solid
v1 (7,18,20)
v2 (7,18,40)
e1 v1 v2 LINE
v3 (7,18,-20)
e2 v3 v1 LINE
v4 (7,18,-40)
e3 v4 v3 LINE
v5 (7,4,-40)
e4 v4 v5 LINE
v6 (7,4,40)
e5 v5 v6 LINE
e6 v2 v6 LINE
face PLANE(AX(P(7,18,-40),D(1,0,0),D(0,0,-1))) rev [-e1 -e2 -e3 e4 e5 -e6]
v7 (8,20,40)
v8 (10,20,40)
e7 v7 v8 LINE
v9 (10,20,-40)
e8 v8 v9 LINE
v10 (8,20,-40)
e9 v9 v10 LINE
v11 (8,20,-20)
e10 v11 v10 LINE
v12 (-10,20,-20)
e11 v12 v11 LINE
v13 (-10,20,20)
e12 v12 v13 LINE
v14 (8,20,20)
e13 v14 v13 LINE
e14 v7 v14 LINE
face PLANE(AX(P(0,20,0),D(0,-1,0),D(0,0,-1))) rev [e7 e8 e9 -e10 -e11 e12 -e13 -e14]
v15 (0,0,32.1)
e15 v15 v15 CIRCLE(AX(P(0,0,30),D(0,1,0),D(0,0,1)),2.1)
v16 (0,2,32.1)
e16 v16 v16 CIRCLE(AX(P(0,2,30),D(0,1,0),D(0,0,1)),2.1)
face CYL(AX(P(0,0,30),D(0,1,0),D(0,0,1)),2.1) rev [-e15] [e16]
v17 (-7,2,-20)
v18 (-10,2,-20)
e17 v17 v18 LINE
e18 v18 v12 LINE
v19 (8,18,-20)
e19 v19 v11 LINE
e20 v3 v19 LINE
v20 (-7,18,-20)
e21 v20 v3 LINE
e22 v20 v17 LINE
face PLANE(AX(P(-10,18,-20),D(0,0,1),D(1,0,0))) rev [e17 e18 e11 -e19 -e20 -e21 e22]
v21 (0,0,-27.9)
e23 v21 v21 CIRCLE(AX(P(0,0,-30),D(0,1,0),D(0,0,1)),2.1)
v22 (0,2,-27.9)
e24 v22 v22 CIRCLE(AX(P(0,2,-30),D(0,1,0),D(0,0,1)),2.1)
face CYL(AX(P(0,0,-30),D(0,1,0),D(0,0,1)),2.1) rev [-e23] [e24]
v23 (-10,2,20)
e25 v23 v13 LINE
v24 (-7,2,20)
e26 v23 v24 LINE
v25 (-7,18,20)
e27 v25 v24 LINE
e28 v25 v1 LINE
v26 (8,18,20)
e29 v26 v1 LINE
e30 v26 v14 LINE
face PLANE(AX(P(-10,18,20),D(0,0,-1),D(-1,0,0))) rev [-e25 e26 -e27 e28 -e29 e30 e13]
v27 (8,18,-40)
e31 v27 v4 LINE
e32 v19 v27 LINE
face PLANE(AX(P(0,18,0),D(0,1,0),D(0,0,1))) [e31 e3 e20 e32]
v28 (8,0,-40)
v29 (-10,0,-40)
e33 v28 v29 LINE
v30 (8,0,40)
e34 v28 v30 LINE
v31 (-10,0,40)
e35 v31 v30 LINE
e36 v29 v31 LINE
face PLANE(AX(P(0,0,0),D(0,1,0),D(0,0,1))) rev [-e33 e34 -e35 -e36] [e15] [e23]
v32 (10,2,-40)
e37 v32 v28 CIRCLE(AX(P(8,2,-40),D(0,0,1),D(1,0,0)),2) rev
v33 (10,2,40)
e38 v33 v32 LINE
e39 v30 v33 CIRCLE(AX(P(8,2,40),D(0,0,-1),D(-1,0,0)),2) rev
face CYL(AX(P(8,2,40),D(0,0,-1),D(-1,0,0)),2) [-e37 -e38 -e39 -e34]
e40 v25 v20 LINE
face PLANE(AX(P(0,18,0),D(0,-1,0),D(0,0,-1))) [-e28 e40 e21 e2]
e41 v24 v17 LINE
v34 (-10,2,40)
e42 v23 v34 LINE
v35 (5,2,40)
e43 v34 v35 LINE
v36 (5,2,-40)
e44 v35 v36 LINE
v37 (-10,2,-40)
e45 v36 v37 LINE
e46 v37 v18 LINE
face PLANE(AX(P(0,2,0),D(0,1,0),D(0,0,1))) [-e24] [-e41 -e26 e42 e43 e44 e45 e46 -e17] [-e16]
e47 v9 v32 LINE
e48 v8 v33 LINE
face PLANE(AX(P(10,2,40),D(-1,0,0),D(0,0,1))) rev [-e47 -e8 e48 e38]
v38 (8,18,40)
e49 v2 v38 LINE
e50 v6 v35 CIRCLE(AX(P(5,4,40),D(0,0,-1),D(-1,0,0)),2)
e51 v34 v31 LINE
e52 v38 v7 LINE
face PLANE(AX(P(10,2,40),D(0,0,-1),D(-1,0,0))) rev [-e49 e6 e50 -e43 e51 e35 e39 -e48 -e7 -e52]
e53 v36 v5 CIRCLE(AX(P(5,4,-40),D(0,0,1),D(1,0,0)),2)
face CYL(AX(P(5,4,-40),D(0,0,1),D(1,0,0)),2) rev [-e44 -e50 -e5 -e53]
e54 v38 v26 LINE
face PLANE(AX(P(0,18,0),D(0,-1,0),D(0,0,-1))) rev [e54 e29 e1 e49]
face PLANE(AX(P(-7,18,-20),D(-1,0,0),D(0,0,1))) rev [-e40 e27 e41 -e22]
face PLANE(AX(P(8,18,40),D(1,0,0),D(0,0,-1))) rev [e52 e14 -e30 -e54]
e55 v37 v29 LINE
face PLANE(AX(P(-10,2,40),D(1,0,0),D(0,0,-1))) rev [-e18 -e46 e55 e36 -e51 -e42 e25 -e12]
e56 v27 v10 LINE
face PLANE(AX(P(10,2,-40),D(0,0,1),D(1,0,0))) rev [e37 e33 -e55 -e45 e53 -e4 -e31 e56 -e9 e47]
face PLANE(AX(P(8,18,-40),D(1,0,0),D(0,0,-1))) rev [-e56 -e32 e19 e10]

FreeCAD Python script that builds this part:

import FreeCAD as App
import Part
import Sketcher
Q = App.Units.Quantity


def edges_at(feature, points):
    """Names of the edges that pass closest to the given points."""
    edges = feature.Shape.Edges
    near = lambda p: min(range(len(edges)), key=lambda i: edges[i].distToShape(Part.Vertex(*p))[0])
    return sorted({f"Edge{near(p) + 1}" for p in points})

doc = App.newDocument("Part")
body = doc.addObject("PartDesign::Body", "Body")

# Sketch on XZ plane
sketch1 = body.newObject("Sketcher::SketchObject", "Sketch")
sketch1.AttachmentSupport = (doc.getObject("XZ_Plane"), [""])
sketch1.MapMode = "FlatFace"
sketch1.addGeometry(Part.LineSegment(App.Vector(-10, -40, 0), App.Vector(-10, 40, 0)), False)
sketch1.addGeometry(Part.LineSegment(App.Vector(-10, 40, 0), App.Vector(10, 40, 0)), False)
sketch1.addGeometry(Part.LineSegment(App.Vector(10, 40, 0), App.Vector(10, -40, 0)), False)
sketch1.addGeometry(Part.LineSegment(App.Vector(10, -40, 0), App.Vector(-10, -40, 0)), False)
sketch1.addConstraint(Sketcher.Constraint("Coincident", 0, 2, 1, 1))
sketch1.addConstraint(Sketcher.Constraint("Coincident", 1, 2, 2, 1))
sketch1.addConstraint(Sketcher.Constraint("Coincident", 2, 2, 3, 1))
sketch1.addConstraint(Sketcher.Constraint("Coincident", 3, 2, 0, 1))
sketch1.addConstraint(Sketcher.Constraint("Vertical", 0))
sketch1.addConstraint(Sketcher.Constraint("Horizontal", 1))
sketch1.addConstraint(Sketcher.Constraint("Vertical", 2))
sketch1.addConstraint(Sketcher.Constraint("Horizontal", 3))
sketch1.addConstraint(Sketcher.Constraint("Symmetric", 0, 2, 2, 2, -1, 1))
sketch1.addConstraint(Sketcher.Constraint("DistanceX", 1, 1, 1, 2, Q("20 mm")))
sketch1.addConstraint(Sketcher.Constraint("DistanceY", 0, 1, 0, 2, Q("80 mm")))
pad1 = body.newObject("PartDesign::Pad", "Pad")
pad1.Profile = sketch1
pad1.Length = 2
pad1.Reversed = True

# Sketch on XZ plane
sketch2 = body.newObject("Sketcher::SketchObject", "Sketch001")
sketch2.AttachmentSupport = (doc.getObject("XZ_Plane"), [""])
sketch2.MapMode = "FlatFace"
sketch2.AttachmentOffset = App.Placement(App.Vector(0, 0, -2), App.Rotation())
sketch2.addGeometry(Part.LineSegment(App.Vector(7, -40, 0), App.Vector(7, 40, 0)), False)
sketch2.addGeometry(Part.LineSegment(App.Vector(7, 40, 0), App.Vector(10, 40, 0)), False)
sketch2.addGeometry(Part.LineSegment(App.Vector(10, 40, 0), App.Vector(10, -40, 0)), False)
sketch2.addGeometry(Part.LineSegment(App.Vector(10, -40, 0), App.Vector(7, -40, 0)), False)
sketch2.addConstraint(Sketcher.Constraint("Coincident", 0, 2, 1, 1))
sketch2.addConstraint(Sketcher.Constraint("Coincident", 1, 2, 2, 1))
sketch2.addConstraint(Sketcher.Constraint("Coincident", 2, 2, 3, 1))
sketch2.addConstraint(Sketcher.Constraint("Coincident", 3, 2, 0, 1))
sketch2.addConstraint(Sketcher.Constraint("Vertical", 0))
sketch2.addConstraint(Sketcher.Constraint("Horizontal", 1))
sketch2.addConstraint(Sketcher.Constraint("Vertical", 2))
sketch2.addConstraint(Sketcher.Constraint("Horizontal", 3))
sketch2.addConstraint(Sketcher.Constraint("DistanceX", 1, 1, 1, 2, Q("3 mm")))
sketch2.addConstraint(Sketcher.Constraint("DistanceY", 0, 1, 0, 2, Q("80 mm")))
sketch2.addConstraint(Sketcher.Constraint("DistanceX", -1, 1, 0, 2, Q("7 mm")))
sketch2.addConstraint(Sketcher.Constraint("DistanceY", -1, 1, 0, 2, Q("40 mm")))
pad2 = body.newObject("PartDesign::Pad", "Pad001")
pad2.Profile = sketch2
pad2.Length = 16
pad2.Reversed = True
doc.recompute()

fillet = body.newObject("PartDesign::Fillet", "Fillet")
fillet.Base = (pad2, edges_at(pad2, [(10, 0, 0)]))
fillet.Radius = 2
doc.recompute()

fillet2 = body.newObject("PartDesign::Fillet", "Fillet001")
fillet2.Base = (fillet, edges_at(fillet, [(7, 2, 0)]))
fillet2.Radius = 2

# Sketch on XZ plane
sketch3 = body.newObject("Sketcher::SketchObject", "Sketch002")
sketch3.AttachmentSupport = (doc.getObject("XZ_Plane"), [""])
sketch3.MapMode = "FlatFace"
sketch3.AttachmentOffset = App.Placement(App.Vector(0, 0, -18), App.Rotation())
sketch3.addGeometry(Part.LineSegment(App.Vector(-10, -40, 0), App.Vector(-10, 40, 0)), False)
sketch3.addGeometry(Part.LineSegment(App.Vector(-10, 40, 0), App.Vector(10, 40, 0)), False)
sketch3.addGeometry(Part.LineSegment(App.Vector(10, 40, 0), App.Vector(10, -40, 0)), False)
sketch3.addGeometry(Part.LineSegment(App.Vector(10, -40, 0), App.Vector(-10, -40, 0)), False)
sketch3.addConstraint(Sketcher.Constraint("Coincident", 0, 2, 1, 1))
sketch3.addConstraint(Sketcher.Constraint("Coincident", 1, 2, 2, 1))
sketch3.addConstraint(Sketcher.Constraint("Coincident", 2, 2, 3, 1))
sketch3.addConstraint(Sketcher.Constraint("Coincident", 3, 2, 0, 1))
sketch3.addConstraint(Sketcher.Constraint("Vertical", 0))
sketch3.addConstraint(Sketcher.Constraint("Horizontal", 1))
sketch3.addConstraint(Sketcher.Constraint("Vertical", 2))
sketch3.addConstraint(Sketcher.Constraint("Horizontal", 3))
sketch3.addConstraint(Sketcher.Constraint("Symmetric", 0, 2, 2, 2, -1, 1))
sketch3.addConstraint(Sketcher.Constraint("DistanceX", 1, 1, 1, 2, Q("20 mm")))
sketch3.addConstraint(Sketcher.Constraint("DistanceY", 0, 1, 0, 2, Q("80 mm")))
pad3 = body.newObject("PartDesign::Pad", "Pad002")
pad3.Profile = sketch3
pad3.Length = 2
pad3.Reversed = True

# Sketch on XZ plane
sketch4 = body.newObject("Sketcher::SketchObject", "Sketch003")
sketch4.AttachmentSupport = (doc.getObject("XZ_Plane"), [""])
sketch4.MapMode = "FlatFace"
sketch4.AttachmentOffset = App.Placement(App.Vector(0, 0, -2), App.Rotation())
sketch4.addGeometry(Part.Circle(App.Vector(0, -30, 0), App.Vector(0, 0, 1), 2.1), False)
sketch4.addGeometry(Part.Circle(App.Vector(0, 30, 0), App.Vector(0, 0, 1), 2.1), False)
sketch4.addConstraint(Sketcher.Constraint("Equal", 0, 1))
sketch4.addConstraint(Sketcher.Constraint("Symmetric", 0, 3, 1, 3, -1, 1))
sketch4.addConstraint(Sketcher.Constraint("PointOnObject", 0, 3, -2))
sketch4.addConstraint(Sketcher.Constraint("Diameter", 0, Q("4.2 mm")))
sketch4.addConstraint(Sketcher.Constraint("DistanceY", 0, 3, -1, 1, Q("30 mm")))
pocket1 = body.newObject("PartDesign::Pocket", "Pocket")
pocket1.Profile = sketch4
pocket1.Length = 2
pocket1.Reversed = True

# Sketch on XZ plane
sketch5 = body.newObject("Sketcher::SketchObject", "Sketch004")
sketch5.AttachmentSupport = (doc.getObject("XZ_Plane"), [""])
sketch5.MapMode = "FlatFace"
sketch5.AttachmentOffset = App.Placement(App.Vector(0, 0, -20), App.Rotation())
sketch5.addGeometry(Part.LineSegment(App.Vector(-10, -40, 0), App.Vector(-10, -20, 0)), False)
sketch5.addGeometry(Part.LineSegment(App.Vector(-10, -20, 0), App.Vector(8, -20, 0)), False)
sketch5.addGeometry(Part.LineSegment(App.Vector(8, -20, 0), App.Vector(8, -40, 0)), False)
sketch5.addGeometry(Part.LineSegment(App.Vector(8, -40, 0), App.Vector(-10, -40, 0)), False)
sketch5.addGeometry(Part.LineSegment(App.Vector(-10, 20, 0), App.Vector(-10, 40, 0)), False)
sketch5.addGeometry(Part.LineSegment(App.Vector(-10, 40, 0), App.Vector(8, 40, 0)), False)
sketch5.addGeometry(Part.LineSegment(App.Vector(8, 40, 0), App.Vector(8, 20, 0)), False)
sketch5.addGeometry(Part.LineSegment(App.Vector(8, 20, 0), App.Vector(-10, 20, 0)), False)
sketch5.addConstraint(Sketcher.Constraint("Coincident", 0, 2, 1, 1))
sketch5.addConstraint(Sketcher.Constraint("Coincident", 1, 2, 2, 1))
sketch5.addConstraint(Sketcher.Constraint("Coincident", 2, 2, 3, 1))
sketch5.addConstraint(Sketcher.Constraint("Coincident", 3, 2, 0, 1))
sketch5.addConstraint(Sketcher.Constraint("Coincident", 4, 2, 5, 1))
sketch5.addConstraint(Sketcher.Constraint("Coincident", 5, 2, 6, 1))
sketch5.addConstraint(Sketcher.Constraint("Coincident", 6, 2, 7, 1))
sketch5.addConstraint(Sketcher.Constraint("Coincident", 7, 2, 4, 1))
sketch5.addConstraint(Sketcher.Constraint("Vertical", 0))
sketch5.addConstraint(Sketcher.Constraint("Horizontal", 1))
sketch5.addConstraint(Sketcher.Constraint("Vertical", 2))
sketch5.addConstraint(Sketcher.Constraint("Horizontal", 3))
sketch5.addConstraint(Sketcher.Constraint("Vertical", 4))
sketch5.addConstraint(Sketcher.Constraint("Horizontal", 5))
sketch5.addConstraint(Sketcher.Constraint("Vertical", 6))
sketch5.addConstraint(Sketcher.Constraint("Horizontal", 7))
sketch5.addConstraint(Sketcher.Constraint("Symmetric", 3, 2, 4, 2, -1))
sketch5.addConstraint(Sketcher.Constraint("Symmetric", 1, 2, 6, 2, -1))
sketch5.addConstraint(Sketcher.Constraint("DistanceX", 1, 1, 1, 2, Q("18 mm")))
sketch5.addConstraint(Sketcher.Constraint("DistanceY", 0, 1, 0, 2, Q("20 mm")))
sketch5.addConstraint(Sketcher.Constraint("DistanceX", 0, 2, -1, 1, Q("10 mm")))
sketch5.addConstraint(Sketcher.Constraint("DistanceY", 0, 2, -1, 1, Q("20 mm")))
pocket2 = body.newObject("PartDesign::Pocket", "Pocket001")
pocket2.Profile = sketch5
pocket2.Length = 2
pocket2.Reversed = True

# Sketch on XZ plane
sketch6 = body.newObject("Sketcher::SketchObject", "Sketch005")
sketch6.AttachmentSupport = (doc.getObject("XZ_Plane"), [""])
sketch6.MapMode = "FlatFace"
sketch6.AttachmentOffset = App.Placement(App.Vector(0, 0, -2), App.Rotation())
sketch6.addGeometry(Part.LineSegment(App.Vector(-10, -20, 0), App.Vector(-10, 20, 0)), False)
sketch6.addGeometry(Part.LineSegment(App.Vector(-10, 20, 0), App.Vector(-7, 20, 0)), False)
sketch6.addGeometry(Part.LineSegment(App.Vector(-7, 20, 0), App.Vector(-7, -20, 0)), False)
sketch6.addGeometry(Part.LineSegment(App.Vector(-7, -20, 0), App.Vector(-10, -20, 0)), False)
sketch6.addConstraint(Sketcher.Constraint("Coincident", 0, 2, 1, 1))
sketch6.addConstraint(Sketcher.Constraint("Coincident", 1, 2, 2, 1))
sketch6.addConstraint(Sketcher.Constraint("Coincident", 2, 2, 3, 1))
sketch6.addConstraint(Sketcher.Constraint("Coincident", 3, 2, 0, 1))
sketch6.addConstraint(Sketcher.Constraint("Vertical", 0))
sketch6.addConstraint(Sketcher.Constraint("Horizontal", 1))
sketch6.addConstraint(Sketcher.Constraint("Vertical", 2))
sketch6.addConstraint(Sketcher.Constraint("Horizontal", 3))
sketch6.addConstraint(Sketcher.Constraint("DistanceX", 1, 1, 1, 2, Q("3 mm")))
sketch6.addConstraint(Sketcher.Constraint("DistanceY", 0, 1, 0, 2, Q("40 mm")))
sketch6.addConstraint(Sketcher.Constraint("DistanceX", 0, 2, -1, 1, Q("10 mm")))
sketch6.addConstraint(Sketcher.Constraint("DistanceY", -1, 1, 0, 2, Q("20 mm")))
pad4 = body.newObject("PartDesign::Pad", "Pad003")
pad4.Profile = sketch6
pad4.Length = 16
pad4.Reversed = True

doc.recompute()
